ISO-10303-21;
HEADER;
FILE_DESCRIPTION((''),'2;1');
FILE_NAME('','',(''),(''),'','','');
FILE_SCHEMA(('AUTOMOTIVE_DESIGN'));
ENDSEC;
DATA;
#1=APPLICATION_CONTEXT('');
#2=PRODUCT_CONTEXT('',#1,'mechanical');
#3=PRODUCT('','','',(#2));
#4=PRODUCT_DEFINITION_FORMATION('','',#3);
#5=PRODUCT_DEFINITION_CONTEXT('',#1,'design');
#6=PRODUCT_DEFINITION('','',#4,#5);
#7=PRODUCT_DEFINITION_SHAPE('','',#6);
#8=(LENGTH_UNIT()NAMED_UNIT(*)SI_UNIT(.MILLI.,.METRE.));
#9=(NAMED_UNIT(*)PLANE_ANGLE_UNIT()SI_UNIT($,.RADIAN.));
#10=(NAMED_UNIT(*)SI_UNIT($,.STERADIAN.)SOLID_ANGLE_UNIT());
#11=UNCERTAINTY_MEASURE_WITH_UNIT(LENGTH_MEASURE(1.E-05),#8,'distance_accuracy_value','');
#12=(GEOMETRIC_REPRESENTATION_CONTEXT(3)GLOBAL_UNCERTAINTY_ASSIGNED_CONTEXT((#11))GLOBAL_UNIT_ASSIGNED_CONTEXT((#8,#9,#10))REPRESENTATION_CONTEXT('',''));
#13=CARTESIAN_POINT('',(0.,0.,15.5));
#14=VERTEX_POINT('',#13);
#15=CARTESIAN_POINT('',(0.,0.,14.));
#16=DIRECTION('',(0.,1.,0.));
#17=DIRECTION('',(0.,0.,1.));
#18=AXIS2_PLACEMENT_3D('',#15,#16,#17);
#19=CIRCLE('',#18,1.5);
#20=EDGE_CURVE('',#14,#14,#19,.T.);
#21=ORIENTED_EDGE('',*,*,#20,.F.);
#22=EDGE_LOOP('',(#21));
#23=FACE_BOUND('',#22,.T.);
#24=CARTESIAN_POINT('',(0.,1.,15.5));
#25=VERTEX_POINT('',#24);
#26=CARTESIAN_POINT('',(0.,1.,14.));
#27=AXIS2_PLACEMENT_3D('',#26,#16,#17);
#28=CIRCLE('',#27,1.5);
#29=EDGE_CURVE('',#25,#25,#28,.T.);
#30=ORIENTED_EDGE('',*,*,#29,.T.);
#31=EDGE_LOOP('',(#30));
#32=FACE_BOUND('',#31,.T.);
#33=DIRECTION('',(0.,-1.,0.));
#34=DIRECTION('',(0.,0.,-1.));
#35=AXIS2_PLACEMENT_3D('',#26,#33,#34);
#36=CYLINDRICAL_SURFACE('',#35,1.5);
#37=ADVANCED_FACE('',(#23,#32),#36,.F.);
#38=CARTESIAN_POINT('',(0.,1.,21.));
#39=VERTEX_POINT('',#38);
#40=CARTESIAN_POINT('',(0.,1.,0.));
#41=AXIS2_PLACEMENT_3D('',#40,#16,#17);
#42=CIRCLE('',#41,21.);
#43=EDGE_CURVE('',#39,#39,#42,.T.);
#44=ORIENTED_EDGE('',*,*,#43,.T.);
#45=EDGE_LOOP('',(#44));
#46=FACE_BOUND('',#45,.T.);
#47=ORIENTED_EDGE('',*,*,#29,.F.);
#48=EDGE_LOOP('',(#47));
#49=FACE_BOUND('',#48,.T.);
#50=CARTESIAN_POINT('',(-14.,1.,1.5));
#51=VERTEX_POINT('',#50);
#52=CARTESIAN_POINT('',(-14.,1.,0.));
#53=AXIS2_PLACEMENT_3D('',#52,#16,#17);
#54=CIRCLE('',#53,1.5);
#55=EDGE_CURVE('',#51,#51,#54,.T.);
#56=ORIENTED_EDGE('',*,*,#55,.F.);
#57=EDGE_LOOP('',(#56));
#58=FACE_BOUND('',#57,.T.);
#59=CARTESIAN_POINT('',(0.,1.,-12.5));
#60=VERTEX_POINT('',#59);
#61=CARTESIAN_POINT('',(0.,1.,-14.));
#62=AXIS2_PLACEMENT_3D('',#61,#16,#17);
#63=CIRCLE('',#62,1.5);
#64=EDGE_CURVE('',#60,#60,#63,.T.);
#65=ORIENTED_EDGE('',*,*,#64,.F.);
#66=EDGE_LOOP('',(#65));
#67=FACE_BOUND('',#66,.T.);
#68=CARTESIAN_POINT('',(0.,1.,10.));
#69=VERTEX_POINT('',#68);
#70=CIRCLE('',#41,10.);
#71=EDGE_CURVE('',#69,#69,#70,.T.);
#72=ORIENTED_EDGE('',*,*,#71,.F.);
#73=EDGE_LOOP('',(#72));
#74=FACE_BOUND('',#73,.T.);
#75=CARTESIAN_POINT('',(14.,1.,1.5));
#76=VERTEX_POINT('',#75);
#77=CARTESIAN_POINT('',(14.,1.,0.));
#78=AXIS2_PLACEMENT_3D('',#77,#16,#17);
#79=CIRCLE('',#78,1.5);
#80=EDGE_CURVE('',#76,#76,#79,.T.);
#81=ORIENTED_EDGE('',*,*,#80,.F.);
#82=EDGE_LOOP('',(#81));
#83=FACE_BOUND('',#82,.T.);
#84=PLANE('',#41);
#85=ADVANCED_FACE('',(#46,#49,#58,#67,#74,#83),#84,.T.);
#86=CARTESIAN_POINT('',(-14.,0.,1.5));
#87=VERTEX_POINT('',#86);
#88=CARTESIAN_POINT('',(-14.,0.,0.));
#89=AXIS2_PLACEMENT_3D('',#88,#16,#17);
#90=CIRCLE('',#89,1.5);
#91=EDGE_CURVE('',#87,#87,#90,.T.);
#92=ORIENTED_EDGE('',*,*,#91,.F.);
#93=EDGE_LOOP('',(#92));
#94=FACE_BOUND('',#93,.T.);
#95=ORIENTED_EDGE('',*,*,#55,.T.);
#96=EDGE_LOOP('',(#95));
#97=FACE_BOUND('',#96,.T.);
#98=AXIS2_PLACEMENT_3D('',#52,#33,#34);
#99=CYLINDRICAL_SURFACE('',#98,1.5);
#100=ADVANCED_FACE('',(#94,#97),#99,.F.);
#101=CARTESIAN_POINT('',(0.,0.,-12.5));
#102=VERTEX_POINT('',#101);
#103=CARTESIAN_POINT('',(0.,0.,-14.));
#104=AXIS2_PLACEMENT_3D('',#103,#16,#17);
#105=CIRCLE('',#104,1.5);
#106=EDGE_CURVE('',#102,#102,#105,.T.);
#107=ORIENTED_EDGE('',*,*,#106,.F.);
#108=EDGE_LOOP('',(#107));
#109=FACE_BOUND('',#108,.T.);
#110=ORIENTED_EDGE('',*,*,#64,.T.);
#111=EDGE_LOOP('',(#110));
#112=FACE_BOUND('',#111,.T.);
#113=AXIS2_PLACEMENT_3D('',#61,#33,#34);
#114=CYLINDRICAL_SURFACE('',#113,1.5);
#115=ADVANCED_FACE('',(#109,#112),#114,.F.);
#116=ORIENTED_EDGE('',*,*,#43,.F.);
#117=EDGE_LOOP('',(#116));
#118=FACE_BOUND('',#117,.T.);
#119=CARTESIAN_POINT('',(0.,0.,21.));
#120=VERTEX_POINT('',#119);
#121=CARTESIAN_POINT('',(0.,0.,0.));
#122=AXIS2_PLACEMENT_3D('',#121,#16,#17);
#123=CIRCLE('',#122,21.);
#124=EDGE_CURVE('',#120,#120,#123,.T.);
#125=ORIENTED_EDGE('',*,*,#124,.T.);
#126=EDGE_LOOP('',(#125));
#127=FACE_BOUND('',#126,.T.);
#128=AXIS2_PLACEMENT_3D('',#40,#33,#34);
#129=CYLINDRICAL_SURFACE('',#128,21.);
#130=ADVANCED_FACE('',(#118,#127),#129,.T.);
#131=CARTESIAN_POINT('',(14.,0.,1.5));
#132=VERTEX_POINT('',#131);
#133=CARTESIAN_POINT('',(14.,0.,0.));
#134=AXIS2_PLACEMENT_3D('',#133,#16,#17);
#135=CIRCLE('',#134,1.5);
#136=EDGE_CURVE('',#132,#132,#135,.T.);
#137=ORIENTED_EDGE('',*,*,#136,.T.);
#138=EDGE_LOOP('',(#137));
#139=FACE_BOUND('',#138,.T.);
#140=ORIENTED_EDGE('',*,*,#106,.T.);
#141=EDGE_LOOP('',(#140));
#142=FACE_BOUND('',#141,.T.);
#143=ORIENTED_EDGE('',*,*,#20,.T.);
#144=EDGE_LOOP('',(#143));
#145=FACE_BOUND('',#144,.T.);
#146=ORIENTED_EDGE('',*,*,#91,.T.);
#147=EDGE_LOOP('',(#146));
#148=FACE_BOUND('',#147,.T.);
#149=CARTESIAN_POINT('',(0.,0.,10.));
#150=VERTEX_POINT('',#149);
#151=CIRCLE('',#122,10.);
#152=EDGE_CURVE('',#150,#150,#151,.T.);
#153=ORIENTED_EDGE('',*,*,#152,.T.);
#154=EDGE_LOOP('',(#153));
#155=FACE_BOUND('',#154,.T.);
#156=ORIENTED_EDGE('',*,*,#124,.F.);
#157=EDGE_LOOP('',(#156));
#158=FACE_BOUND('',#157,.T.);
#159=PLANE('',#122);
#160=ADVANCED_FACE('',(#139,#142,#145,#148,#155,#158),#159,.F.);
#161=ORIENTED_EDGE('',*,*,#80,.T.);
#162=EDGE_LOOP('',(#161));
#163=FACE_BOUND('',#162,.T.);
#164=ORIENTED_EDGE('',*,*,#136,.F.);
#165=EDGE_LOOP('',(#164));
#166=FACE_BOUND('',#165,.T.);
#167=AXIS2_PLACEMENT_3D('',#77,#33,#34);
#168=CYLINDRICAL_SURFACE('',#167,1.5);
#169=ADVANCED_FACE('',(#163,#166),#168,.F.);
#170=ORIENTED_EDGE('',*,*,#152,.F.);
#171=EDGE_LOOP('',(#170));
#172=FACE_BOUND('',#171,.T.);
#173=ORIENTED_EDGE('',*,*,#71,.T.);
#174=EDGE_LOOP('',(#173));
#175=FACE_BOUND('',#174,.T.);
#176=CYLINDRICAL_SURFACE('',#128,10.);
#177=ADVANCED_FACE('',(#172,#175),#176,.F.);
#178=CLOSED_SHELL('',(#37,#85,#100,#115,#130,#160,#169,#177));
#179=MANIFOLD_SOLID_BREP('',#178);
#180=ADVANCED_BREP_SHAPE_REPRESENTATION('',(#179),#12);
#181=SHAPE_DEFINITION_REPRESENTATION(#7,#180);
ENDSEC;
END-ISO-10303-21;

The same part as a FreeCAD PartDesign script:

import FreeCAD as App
import Part
import Sketcher
from FreeCAD import Vector
Q = App.Units.Quantity

doc = App.newDocument("Part")
body = doc.addObject("PartDesign::Body", "Body")

sketch1 = body.newObject("Sketcher::SketchObject", "Sketch")
sketch1.AttachmentSupport = (doc.getObject("XZ_Plane"), [""])
sketch1.MapMode = "FlatFace"
sketch1.addGeometry([
    Part.Circle(Vector(0, 0, 0), Vector(0, 0, 1), 21),
    Part.Circle(Vector(0, -14, 0), Vector(0, 0, 1), 1.5),
    Part.Circle(Vector(-14, 0, 0), Vector(0, 0, 1), 1.5),
    Part.Circle(Vector(14, 0, 0), Vector(0, 0, 1), 1.5),
    Part.Circle(Vector(0, 0, 0), Vector(0, 0, 1), 10),
    Part.Circle(Vector(0, 14, 0), Vector(0, 0, 1), 1.5),
], False)
sketch1.addConstraint([
    Sketcher.Constraint("Coincident", 0, 3, -1, 1),
    Sketcher.Constraint("Coincident", 4, 3, -1, 1),
    Sketcher.Constraint("Equal", 1, 2),
    Sketcher.Constraint("Equal", 2, 3),
    Sketcher.Constraint("Equal", 3, 5),
    Sketcher.Constraint("Symmetric", 2, 3, 3, 3, -1, 1),
    Sketcher.Constraint("Symmetric", 1, 3, 5, 3, -1, 1),
    Sketcher.Constraint("PointOnObject", 1, 3, -2),
    Sketcher.Constraint("PointOnObject", 2, 3, -1),
    Sketcher.Constraint("Diameter", 0, Q("42 mm")),
    Sketcher.Constraint("Diameter", 1, Q("3 mm")),
    Sketcher.Constraint("Diameter", 4, Q("20 mm")),
    Sketcher.Constraint("DistanceY", 1, 3, -1, 1, Q("14 mm")),
    Sketcher.Constraint("DistanceX", 2, 3, -1, 1, Q("14 mm")),
])
pad1 = body.newObject("PartDesign::Pad", "Pad")
pad1.Profile = sketch1
pad1.Length = 1
pad1.Reversed = True

doc.recompute()
